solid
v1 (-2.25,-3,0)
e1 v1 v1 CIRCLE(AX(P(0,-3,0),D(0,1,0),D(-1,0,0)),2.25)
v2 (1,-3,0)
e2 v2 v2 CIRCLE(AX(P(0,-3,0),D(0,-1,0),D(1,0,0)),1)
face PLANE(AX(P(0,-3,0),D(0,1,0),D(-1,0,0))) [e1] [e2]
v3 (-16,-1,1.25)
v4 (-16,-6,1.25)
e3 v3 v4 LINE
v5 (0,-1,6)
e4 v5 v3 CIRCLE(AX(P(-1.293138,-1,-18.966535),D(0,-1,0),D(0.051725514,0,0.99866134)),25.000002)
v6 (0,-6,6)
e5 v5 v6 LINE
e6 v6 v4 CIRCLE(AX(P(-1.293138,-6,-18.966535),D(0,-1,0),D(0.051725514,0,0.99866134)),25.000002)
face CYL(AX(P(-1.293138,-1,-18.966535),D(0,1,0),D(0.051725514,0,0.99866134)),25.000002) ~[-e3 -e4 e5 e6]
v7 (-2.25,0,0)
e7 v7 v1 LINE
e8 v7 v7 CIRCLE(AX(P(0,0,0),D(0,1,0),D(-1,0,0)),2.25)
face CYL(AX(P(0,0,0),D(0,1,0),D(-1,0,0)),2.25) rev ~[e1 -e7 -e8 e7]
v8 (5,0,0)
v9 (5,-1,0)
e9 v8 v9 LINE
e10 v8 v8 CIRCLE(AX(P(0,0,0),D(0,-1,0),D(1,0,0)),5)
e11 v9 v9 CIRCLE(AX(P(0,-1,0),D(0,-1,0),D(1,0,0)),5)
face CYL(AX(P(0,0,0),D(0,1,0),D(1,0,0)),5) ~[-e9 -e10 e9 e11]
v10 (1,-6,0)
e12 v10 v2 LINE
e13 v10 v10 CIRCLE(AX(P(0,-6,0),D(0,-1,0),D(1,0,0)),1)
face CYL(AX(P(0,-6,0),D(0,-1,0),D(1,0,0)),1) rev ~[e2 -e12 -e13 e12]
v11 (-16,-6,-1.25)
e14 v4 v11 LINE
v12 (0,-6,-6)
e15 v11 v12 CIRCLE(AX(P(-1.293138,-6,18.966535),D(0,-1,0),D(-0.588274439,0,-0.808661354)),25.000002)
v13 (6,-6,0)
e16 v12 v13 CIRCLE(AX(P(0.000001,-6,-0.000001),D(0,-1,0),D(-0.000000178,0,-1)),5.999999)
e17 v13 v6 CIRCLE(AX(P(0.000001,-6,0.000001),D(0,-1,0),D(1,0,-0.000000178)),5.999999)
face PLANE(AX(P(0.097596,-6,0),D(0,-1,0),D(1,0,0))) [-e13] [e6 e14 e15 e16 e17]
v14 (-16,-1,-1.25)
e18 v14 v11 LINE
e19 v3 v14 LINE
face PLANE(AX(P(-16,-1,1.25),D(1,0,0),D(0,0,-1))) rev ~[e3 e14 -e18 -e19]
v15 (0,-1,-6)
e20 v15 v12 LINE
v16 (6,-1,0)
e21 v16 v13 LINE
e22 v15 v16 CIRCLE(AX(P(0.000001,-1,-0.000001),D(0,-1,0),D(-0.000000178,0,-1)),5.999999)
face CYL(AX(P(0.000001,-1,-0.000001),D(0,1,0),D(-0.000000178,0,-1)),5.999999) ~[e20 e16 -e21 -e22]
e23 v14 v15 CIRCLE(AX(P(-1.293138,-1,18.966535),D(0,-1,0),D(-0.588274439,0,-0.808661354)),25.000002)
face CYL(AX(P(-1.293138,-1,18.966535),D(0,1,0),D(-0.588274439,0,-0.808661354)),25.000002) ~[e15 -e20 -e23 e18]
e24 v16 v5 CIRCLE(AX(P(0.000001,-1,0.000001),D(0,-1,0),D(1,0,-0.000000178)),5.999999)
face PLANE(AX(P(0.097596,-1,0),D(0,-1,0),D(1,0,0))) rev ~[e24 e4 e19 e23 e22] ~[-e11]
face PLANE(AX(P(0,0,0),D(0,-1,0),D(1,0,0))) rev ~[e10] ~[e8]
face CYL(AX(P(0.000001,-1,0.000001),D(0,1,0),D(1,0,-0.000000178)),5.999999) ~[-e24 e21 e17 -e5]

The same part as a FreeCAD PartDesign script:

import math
import FreeCAD as App
import Part
import Sketcher


def add_polygon(sketch, points):
    """Adds a closed chain of lines whose ends are joined by coincident constraints."""
    first, n = sketch.GeometryCount, len(points)
    for a, b in zip(points, points[1:] + points[:1]):
        sketch.addGeometry(Part.LineSegment(App.Vector(*a, 0), App.Vector(*b, 0)), False)
    for i in range(n):
        sketch.addConstraint(Sketcher.Constraint("Coincident", first + i, 2, first + (i + 1) % n, 1))

doc = App.newDocument("Part")
params = doc.addObject("Spreadsheet::Sheet", "Params")
for row, (alias, value) in enumerate([
    ("sketch1_diameter", "10 mm"),
    ("pad1_length", "1 mm"),
    ("sketch2_radius", "5.999999 mm"),
    ("sketch2_radius2", "25.000002 mm"),
    ("sketch2_height", "2.5 mm"),
    ("pad2_length", "5 mm"),
    ("pad3_length", "5 mm"),
    ("sketch4_diameter", "4.5 mm"),
    ("pocket1_length", "3 mm"),
    ("sketch5_diameter", "2 mm"),
    ("pocket2_length", "25 mm"),
], start=1):
    params.set(f"A{row}", alias)
    params.set(f"B{row}", "=" + value)
    params.setAlias(f"B{row}", alias)

body = doc.addObject("PartDesign::Body", "Body")

# Sketch on XZ plane
sketch1 = body.newObject("Sketcher::SketchObject", "Sketch")
sketch1.AttachmentSupport = (doc.getObject("XZ_Plane"), [""])
sketch1.MapMode = "FlatFace"
sketch1.addGeometry(Part.Circle(App.Vector(0, 0, 0), App.Vector(0, 0, 1), 5), False)
sketch1.addConstraint(Sketcher.Constraint("Coincident", 0, 3, -1, 1))
sketch1.addConstraint(Sketcher.Constraint("Diameter", 0, 10.0))
sketch1.setExpression("Constraints[1]", "Params.sketch1_diameter")
pad1 = body.newObject("PartDesign::Pad", "Pad")
pad1.Profile = sketch1
pad1.setExpression("Length", "Params.pad1_length")

# Sketch on XZ plane
sketch2 = body.newObject("Sketcher::SketchObject", "Sketch001")
sketch2.AttachmentSupport = (doc.getObject("XZ_Plane"), [""])
sketch2.MapMode = "FlatFace"
sketch2.AttachmentOffset = App.Placement(App.Vector(0, 0, 1), App.Rotation())
sketch2.addGeometry(Part.ArcOfCircle(Part.Circle(App.Vector(0, 0, 0), App.Vector(0, 0, 1), 6), math.radians(-90), math.radians(0)), False)
sketch2.addGeometry(Part.ArcOfCircle(Part.Circle(App.Vector(0, 0, 0), App.Vector(0, 0, 1), 6), math.radians(0), math.radians(90)), False)
sketch2.addGeometry(Part.ArcOfCircle(Part.Circle(App.Vector(-1.3, -19, 0), App.Vector(0, 0, 1), 25), math.radians(87), math.radians(126)), False)
sketch2.addGeometry(Part.LineSegment(App.Vector(-16, 1.2, 0), App.Vector(-16, -1.2, 0)), False)
sketch2.addGeometry(Part.ArcOfCircle(Part.Circle(App.Vector(-1.3, 19, 0), App.Vector(0, 0, 1), 25), math.radians(-126), math.radians(-87)), False)
sketch2.addGeometry(Part.ArcOfCircle(Part.Circle(App.Vector(0, 0, 0), App.Vector(0, 0, 1), 6), math.radians(167.98), math.radians(180)), False)
sketch2.addGeometry(Part.LineSegment(App.Vector(-5.9, 1.2, 0), App.Vector(4, 1.2, 0)), False)
sketch2.addGeometry(Part.LineSegment(App.Vector(4, 1.2, 0), App.Vector(4, -1.2, 0)), False)
sketch2.addGeometry(Part.LineSegment(App.Vector(4, -1.2, 0), App.Vector(-5.9, -1.2, 0)), False)
sketch2.addGeometry(Part.ArcOfCircle(Part.Circle(App.Vector(0, 0, 0), App.Vector(0, 0, 1), 6), math.radians(180), math.radians(192.02)), False)
sketch2.addConstraint(Sketcher.Constraint("Tangent", 0, 2, 1, 1))
sketch2.addConstraint(Sketcher.Constraint("Coincident", 1, 2, 2, 1))
sketch2.addConstraint(Sketcher.Constraint("Coincident", 2, 2, 3, 1))
sketch2.addConstraint(Sketcher.Constraint("Coincident", 3, 2, 4, 1))
sketch2.addConstraint(Sketcher.Constraint("Coincident", 4, 2, 0, 1))
sketch2.addConstraint(Sketcher.Constraint("Coincident", 5, 1, 6, 1))
sketch2.addConstraint(Sketcher.Constraint("Coincident", 6, 2, 7, 1))
sketch2.addConstraint(Sketcher.Constraint("Coincident", 7, 2, 8, 1))
sketch2.addConstraint(Sketcher.Constraint("Coincident", 8, 2, 9, 2))
sketch2.addConstraint(Sketcher.Constraint("Tangent", 9, 1, 5, 2))
sketch2.addConstraint(Sketcher.Constraint("Vertical", 3))
sketch2.addConstraint(Sketcher.Constraint("Horizontal", 6))
sketch2.addConstraint(Sketcher.Constraint("Vertical", 7))
sketch2.addConstraint(Sketcher.Constraint("Horizontal", 8))
sketch2.addConstraint(Sketcher.Constraint("Coincident", 0, 3, -1, 1))
sketch2.addConstraint(Sketcher.Constraint("Equal", 0, 1))
sketch2.addConstraint(Sketcher.Constraint("Equal", 2, 4))
sketch2.addConstraint(Sketcher.Constraint("Equal", 5, 9))
sketch2.addConstraint(Sketcher.Constraint("Symmetric", 0, 2, 9, 1, -1, 1))
sketch2.addConstraint(Sketcher.Constraint("Symmetric", 2, 3, 4, 3, -1))
sketch2.addConstraint(Sketcher.Constraint("Symmetric", 5, 1, 8, 2, -1))
sketch2.addConstraint(Sketcher.Constraint("PointOnObject", 0, 2, -1))
sketch2.addConstraint(Sketcher.Constraint("PointOnObject", 1, 2, -2))
sketch2.addConstraint(Sketcher.Constraint("Horizontal", 2, 2, 5, 1))
sketch2.addConstraint(Sketcher.Constraint("Radius", 0, 5.999999))
sketch2.addConstraint(Sketcher.Constraint("Radius", 2, 25.000002))
sketch2.addConstraint(Sketcher.Constraint("DistanceY", 3, 2, 3, 1, 2.5))
sketch2.addConstraint(Sketcher.Constraint("DistanceX", 2, 2, -1, 1, 16.0))
sketch2.addConstraint(Sketcher.Constraint("DistanceX", -1, 1, 6, 2, 4.0))
sketch2.addConstraint(Sketcher.Constraint("Radius", 5, 5.999982))
sketch2.setExpression("Constraints[24]", "Params.sketch2_radius")
sketch2.setExpression("Constraints[25]", "Params.sketch2_radius2")
sketch2.setExpression("Constraints[26]", "Params.sketch2_height")
pad2 = body.newObject("PartDesign::Pad", "Pad001")
pad2.Profile = sketch2
pad2.setExpression("Length", "Params.pad2_length")

# Sketch on XZ plane
sketch3 = body.newObject("Sketcher::SketchObject", "Sketch002")
sketch3.AttachmentSupport = (doc.getObject("XZ_Plane"), [""])
sketch3.MapMode = "FlatFace"
sketch3.AttachmentOffset = App.Placement(App.Vector(0, 0, 6), App.Rotation())
add_polygon(sketch3, [(-6.7, 1.9), (-6.7, -1.9), (4.6, -1.9), (4.6, 1.9)])  # lines 0-3
sketch3.addConstraint(Sketcher.Constraint("Vertical", 0))
sketch3.addConstraint(Sketcher.Constraint("Horizontal", 1))
sketch3.addConstraint(Sketcher.Constraint("Vertical", 2))
sketch3.addConstraint(Sketcher.Constraint("Horizontal", 3))
sketch3.addConstraint(Sketcher.Constraint("DistanceX", 1, 1, 1, 2, 11.32601))
sketch3.addConstraint(Sketcher.Constraint("DistanceY", 0, 2, 0, 1, 3.74272))
sketch3.addConstraint(Sketcher.Constraint("DistanceY", 0, 2, -1, 1, 1.878912))
sketch3.addConstraint(Sketcher.Constraint("DistanceX", 0, 2, -1, 1, 6.687712))
pad3 = body.newObject("PartDesign::Pad", "Pad002")
pad3.Profile = sketch3
pad3.setExpression("Length", "Params.pad3_length")
pad3.Reversed = True

# Sketch on XZ plane
sketch4 = body.newObject("Sketcher::SketchObject", "Sketch003")
sketch4.AttachmentSupport = (doc.getObject("XZ_Plane"), [""])
sketch4.MapMode = "FlatFace"
sketch4.addGeometry(Part.Circle(App.Vector(0, 0, 0), App.Vector(0, 0, 1), 2.2), False)
sketch4.addConstraint(Sketcher.Constraint("Coincident", 0, 3, -1, 1))
sketch4.addConstraint(Sketcher.Constraint("Diameter", 0, 4.5))
sketch4.setExpression("Constraints[1]", "Params.sketch4_diameter")
pocket1 = body.newObject("PartDesign::Pocket", "Pocket")
pocket1.Profile = sketch4
pocket1.setExpression("Length", "Params.pocket1_length")
pocket1.Reversed = True

# Sketch on XZ plane
sketch5 = body.newObject("Sketcher::SketchObject", "Sketch004")
sketch5.AttachmentSupport = (doc.getObject("XZ_Plane"), [""])
sketch5.MapMode = "FlatFace"
sketch5.AttachmentOffset = App.Placement(App.Vector(0, 0, 6), App.Rotation())
sketch5.addGeometry(Part.Circle(App.Vector(0, 0, 0), App.Vector(0, 0, 1), 1), False)
sketch5.addConstraint(Sketcher.Constraint("Coincident", 0, 3, -1, 1))
sketch5.addConstraint(Sketcher.Constraint("Diameter", 0, 2.0))
sketch5.setExpression("Constraints[1]", "Params.sketch5_diameter")
pocket2 = body.newObject("PartDesign::Pocket", "Pocket001")
pocket2.Profile = sketch5
pocket2.setExpression("Length", "Params.pocket2_length")

doc.recompute()
